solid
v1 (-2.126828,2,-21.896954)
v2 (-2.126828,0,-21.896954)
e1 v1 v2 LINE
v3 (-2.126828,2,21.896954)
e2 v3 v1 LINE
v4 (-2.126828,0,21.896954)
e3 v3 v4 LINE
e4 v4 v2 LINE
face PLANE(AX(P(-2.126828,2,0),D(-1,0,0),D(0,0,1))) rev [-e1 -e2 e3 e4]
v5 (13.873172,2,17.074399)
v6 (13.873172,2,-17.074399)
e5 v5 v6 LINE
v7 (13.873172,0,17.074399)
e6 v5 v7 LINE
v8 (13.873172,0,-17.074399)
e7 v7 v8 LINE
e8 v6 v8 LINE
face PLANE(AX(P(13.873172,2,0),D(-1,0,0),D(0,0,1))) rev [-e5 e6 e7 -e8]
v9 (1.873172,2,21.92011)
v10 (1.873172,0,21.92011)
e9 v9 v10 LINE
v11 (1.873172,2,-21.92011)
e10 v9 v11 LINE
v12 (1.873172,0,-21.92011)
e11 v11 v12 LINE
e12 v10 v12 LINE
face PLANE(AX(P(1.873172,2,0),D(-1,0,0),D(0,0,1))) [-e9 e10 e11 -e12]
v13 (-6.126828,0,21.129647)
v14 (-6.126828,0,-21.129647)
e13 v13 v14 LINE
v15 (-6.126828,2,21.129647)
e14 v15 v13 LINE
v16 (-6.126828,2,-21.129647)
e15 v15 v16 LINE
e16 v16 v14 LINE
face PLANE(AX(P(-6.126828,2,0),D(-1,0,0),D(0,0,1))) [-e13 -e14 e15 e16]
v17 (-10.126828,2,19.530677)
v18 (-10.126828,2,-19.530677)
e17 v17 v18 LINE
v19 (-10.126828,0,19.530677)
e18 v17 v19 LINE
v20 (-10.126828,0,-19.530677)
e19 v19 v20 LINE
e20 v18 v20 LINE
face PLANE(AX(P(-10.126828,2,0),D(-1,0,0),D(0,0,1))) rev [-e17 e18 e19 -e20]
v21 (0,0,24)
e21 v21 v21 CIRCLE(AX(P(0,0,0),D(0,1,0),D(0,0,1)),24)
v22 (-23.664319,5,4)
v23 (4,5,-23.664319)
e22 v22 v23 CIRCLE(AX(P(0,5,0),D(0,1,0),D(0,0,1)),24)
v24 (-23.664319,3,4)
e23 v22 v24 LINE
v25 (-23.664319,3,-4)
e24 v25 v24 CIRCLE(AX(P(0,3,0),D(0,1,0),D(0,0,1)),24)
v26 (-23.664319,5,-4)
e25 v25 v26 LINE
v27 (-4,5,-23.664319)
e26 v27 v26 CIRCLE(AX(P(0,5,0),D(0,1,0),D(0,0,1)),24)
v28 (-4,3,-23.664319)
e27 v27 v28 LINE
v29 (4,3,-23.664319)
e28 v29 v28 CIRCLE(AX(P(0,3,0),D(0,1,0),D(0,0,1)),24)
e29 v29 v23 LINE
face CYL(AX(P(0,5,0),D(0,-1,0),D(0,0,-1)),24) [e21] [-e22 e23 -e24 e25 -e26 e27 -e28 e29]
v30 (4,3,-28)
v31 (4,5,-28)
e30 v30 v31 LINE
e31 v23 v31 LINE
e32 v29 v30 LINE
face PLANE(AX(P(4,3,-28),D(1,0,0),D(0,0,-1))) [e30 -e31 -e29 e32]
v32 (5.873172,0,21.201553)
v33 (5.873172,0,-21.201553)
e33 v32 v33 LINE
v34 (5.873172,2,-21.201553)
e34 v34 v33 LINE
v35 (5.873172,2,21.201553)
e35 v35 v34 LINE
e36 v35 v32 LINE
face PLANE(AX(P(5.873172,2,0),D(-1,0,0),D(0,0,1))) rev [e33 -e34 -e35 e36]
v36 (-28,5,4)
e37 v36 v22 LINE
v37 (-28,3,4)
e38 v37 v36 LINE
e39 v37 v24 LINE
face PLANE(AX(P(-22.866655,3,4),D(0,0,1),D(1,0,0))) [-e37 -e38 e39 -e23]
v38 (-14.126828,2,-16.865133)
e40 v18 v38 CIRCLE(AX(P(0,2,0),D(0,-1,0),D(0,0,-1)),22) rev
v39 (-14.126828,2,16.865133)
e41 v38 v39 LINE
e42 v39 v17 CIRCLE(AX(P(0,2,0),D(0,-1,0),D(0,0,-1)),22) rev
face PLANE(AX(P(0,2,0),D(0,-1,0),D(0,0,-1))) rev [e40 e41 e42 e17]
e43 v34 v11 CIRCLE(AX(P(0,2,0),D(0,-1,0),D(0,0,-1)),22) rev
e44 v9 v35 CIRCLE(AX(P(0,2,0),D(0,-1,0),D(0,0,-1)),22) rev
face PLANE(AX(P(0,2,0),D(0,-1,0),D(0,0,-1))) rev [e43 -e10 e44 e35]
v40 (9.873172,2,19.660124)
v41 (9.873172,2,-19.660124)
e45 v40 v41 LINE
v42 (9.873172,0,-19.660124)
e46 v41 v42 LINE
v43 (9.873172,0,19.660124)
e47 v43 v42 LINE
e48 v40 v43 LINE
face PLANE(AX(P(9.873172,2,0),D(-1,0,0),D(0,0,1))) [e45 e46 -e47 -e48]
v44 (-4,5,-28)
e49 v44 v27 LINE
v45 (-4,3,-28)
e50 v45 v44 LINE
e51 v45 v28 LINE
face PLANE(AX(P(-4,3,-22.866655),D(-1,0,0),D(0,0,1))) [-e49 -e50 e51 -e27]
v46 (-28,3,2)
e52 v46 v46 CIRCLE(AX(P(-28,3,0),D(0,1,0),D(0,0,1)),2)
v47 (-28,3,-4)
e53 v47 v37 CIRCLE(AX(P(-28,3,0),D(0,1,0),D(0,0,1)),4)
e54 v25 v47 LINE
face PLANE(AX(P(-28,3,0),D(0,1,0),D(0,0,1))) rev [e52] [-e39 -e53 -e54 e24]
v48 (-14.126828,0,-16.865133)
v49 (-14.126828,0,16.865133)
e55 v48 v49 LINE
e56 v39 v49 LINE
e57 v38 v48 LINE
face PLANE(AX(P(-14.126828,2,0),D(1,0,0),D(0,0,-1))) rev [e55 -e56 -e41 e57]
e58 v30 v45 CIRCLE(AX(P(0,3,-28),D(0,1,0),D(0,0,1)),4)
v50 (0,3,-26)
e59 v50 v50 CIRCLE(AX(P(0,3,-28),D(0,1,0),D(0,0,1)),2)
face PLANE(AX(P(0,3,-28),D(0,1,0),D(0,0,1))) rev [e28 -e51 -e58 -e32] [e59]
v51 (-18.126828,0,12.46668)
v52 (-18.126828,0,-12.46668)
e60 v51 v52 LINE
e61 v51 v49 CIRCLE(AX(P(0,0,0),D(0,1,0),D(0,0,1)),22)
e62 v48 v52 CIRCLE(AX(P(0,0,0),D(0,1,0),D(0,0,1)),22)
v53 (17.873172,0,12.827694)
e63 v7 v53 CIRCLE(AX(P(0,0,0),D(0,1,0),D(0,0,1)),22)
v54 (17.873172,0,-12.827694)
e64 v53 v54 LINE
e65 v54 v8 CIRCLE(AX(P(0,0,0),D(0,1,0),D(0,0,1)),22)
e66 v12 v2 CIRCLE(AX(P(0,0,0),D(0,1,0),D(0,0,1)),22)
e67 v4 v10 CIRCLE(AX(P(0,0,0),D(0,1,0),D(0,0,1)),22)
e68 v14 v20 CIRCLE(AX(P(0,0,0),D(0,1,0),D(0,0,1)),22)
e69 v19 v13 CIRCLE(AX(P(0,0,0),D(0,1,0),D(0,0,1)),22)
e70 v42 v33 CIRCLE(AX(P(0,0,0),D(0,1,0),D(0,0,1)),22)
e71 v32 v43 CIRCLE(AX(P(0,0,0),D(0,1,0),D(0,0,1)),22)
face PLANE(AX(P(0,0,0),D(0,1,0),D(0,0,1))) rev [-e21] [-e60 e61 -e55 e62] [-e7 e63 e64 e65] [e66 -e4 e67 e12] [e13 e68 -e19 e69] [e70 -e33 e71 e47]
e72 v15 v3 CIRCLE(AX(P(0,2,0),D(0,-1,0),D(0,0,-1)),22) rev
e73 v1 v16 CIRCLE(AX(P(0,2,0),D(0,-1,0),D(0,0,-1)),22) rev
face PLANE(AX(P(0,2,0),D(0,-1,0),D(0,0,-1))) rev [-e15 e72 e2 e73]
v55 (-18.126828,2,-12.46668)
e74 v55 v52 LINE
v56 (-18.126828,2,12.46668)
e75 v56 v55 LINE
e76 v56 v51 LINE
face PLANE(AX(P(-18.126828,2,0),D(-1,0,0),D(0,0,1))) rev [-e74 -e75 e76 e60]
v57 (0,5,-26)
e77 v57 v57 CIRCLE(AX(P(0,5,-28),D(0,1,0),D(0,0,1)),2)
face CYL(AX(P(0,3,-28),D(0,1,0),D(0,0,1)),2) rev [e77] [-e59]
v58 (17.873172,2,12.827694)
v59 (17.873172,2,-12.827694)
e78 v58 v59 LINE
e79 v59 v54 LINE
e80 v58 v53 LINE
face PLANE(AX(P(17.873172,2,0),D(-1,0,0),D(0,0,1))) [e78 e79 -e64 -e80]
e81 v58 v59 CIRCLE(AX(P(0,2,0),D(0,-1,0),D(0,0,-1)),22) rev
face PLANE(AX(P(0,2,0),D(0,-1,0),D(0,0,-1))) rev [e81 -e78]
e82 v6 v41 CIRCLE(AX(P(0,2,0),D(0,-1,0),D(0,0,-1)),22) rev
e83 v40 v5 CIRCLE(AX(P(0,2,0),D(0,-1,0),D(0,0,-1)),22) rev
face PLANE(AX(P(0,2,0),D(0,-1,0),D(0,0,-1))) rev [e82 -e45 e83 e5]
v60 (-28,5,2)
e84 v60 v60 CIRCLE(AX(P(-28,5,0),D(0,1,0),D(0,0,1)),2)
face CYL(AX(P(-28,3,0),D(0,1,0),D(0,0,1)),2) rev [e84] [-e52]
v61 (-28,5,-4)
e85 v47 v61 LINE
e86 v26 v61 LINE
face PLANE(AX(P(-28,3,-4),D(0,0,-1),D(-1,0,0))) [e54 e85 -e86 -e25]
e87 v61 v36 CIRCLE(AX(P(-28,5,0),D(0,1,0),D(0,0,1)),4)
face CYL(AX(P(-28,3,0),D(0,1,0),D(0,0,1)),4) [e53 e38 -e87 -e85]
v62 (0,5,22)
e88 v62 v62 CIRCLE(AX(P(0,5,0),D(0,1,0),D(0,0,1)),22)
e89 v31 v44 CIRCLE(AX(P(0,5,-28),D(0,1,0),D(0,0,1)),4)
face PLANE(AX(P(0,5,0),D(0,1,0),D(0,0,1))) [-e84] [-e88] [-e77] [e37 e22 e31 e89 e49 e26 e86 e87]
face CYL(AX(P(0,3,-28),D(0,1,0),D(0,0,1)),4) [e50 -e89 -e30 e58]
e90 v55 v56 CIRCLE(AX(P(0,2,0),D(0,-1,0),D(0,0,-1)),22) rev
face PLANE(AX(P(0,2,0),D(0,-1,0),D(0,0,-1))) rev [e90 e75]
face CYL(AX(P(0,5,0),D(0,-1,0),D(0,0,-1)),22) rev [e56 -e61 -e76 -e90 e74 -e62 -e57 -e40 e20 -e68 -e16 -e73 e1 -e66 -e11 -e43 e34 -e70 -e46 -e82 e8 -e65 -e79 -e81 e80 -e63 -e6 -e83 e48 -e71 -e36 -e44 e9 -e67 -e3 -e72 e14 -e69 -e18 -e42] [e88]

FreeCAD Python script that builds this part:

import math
import FreeCAD as App
import Part
import Sketcher

V = App.Vector
Q = App.Units.Quantity

doc = App.newDocument("Part")
params = doc.addObject("Spreadsheet::Sheet", "Params")
for row, (alias, value) in enumerate([
    ("sketch1_diameter", "48 mm"),
    ("sketch1_diameter2", "44 mm"),
    ("pad1_length", "5 mm"),
    ("sketch2_radius", "24 mm"),
    ("sketch2_radius2", "22 mm"),
    ("pad2_length", "2 mm"),
    ("sketch3_diameter", "4 mm"),
    ("sketch3_radius", "4 mm"),
    ("pad3_length", "2 mm"),
], start=1):
    params.set(f"A{row}", alias)
    params.set(f"B{row}", "=" + value)
    params.setAlias(f"B{row}", alias)

body = doc.addObject("PartDesign::Body", "Body")

sketch1 = body.newObject("Sketcher::SketchObject", "Sketch")
sketch1.AttachmentSupport = (doc.getObject("XZ_Plane"), [""])
sketch1.MapMode = "FlatFace"
sketch1.addGeometry([
    Part.Circle(V(0, 0, 0), V(0, 0, 1), 24),
    Part.Circle(V(0, 0, 0), V(0, 0, 1), 22),
], False)
sketch1.addConstraint([
    Sketcher.Constraint("Coincident", 0, 3, -1, 1),
    Sketcher.Constraint("Coincident", 1, 3, -1, 1),
    Sketcher.Constraint("Diameter", 0, Q("48 mm")),
    Sketcher.Constraint("Diameter", 1, Q("44 mm")),
])
sketch1.setExpression("Constraints[2]", "Params.sketch1_diameter")
sketch1.setExpression("Constraints[3]", "Params.sketch1_diameter2")
pad1 = body.newObject("PartDesign::Pad", "Pad")
pad1.Profile = sketch1
pad1.setExpression("Length", "Params.pad1_length")
pad1.Reversed = True

sketch2 = body.newObject("Sketcher::SketchObject", "Sketch001")
sketch2.AttachmentSupport = (doc.getObject("XZ_Plane"), [""])
sketch2.MapMode = "FlatFace"
sketch2.addGeometry([
    Part.LineSegment(V(-18.1, 12.8, 0), V(-18.1, 15.7, 0)),
    Part.ArcOfCircle(Part.Circle(V(0, 0, 0), V(0, 0, 1), 24), math.radians(139), math.radians(221)),
    Part.LineSegment(V(-18.1, -15.7, 0), V(-18.1, -12.8, 0)),
    Part.ArcOfCircle(Part.Circle(V(0, 0, 0), V(0, 0, 1), 22.2), math.radians(145), math.radians(215)),
    Part.LineSegment(V(-18.1, -12.5, 0), V(-18.1, 12.5, 0)),
    Part.ArcOfCircle(Part.Circle(V(0, 0, 0), V(0, 0, 1), 22), math.radians(145), math.radians(215)),
    Part.ArcOfCircle(Part.Circle(V(0, 0, 0), V(0, 0, 1), 22), math.radians(117.41), math.radians(129.95)),
    Part.LineSegment(V(-14.1, 16.9, 0), V(-14.1, -16.9, 0)),
    Part.ArcOfCircle(Part.Circle(V(0, 0, 0), V(0, 0, 1), 22), math.radians(-129.95), math.radians(-117.41)),
    Part.LineSegment(V(-10.1, -19.5, 0), V(-10.1, 19.5, 0)),
    Part.ArcOfCircle(Part.Circle(V(0, 0, 0), V(0, 0, 1), 22), math.radians(95.55), math.radians(106.17)),
    Part.LineSegment(V(-6.1, 21.1, 0), V(-6.1, -21.1, 0)),
    Part.ArcOfCircle(Part.Circle(V(0, 0, 0), V(0, 0, 1), 22), math.radians(-106.17), math.radians(-95.55)),
    Part.LineSegment(V(-2.1, -21.9, 0), V(-2.1, 21.9, 0)),
    Part.ArcOfCircle(Part.Circle(V(0, 0, 0), V(0, 0, 1), 22), math.radians(74.52), math.radians(85.12)),
    Part.LineSegment(V(1.9, 21.9, 0), V(1.9, -21.9, 0)),
    Part.ArcOfCircle(Part.Circle(V(0, 0, 0), V(0, 0, 1), 22), math.radians(-85.12), math.radians(-74.52)),
    Part.LineSegment(V(5.9, -21.2, 0), V(5.9, 21.2, 0)),
    Part.ArcOfCircle(Part.Circle(V(0, 0, 0), V(0, 0, 1), 22), math.radians(50.91), math.radians(63.33)),
    Part.LineSegment(V(9.9, 19.7, 0), V(9.9, -19.7, 0)),
    Part.ArcOfCircle(Part.Circle(V(0, 0, 0), V(0, 0, 1), 22), math.radians(-63.33), math.radians(-50.91)),
    Part.LineSegment(V(13.9, -17.1, 0), V(13.9, 17.1, 0)),
    Part.ArcOfCircle(Part.Circle(V(0, 0, 0), V(0, 0, 1), 22), math.radians(0), math.radians(36)),
    Part.LineSegment(V(17.9, 12.8, 0), V(17.9, -12.8, 0)),
    Part.ArcOfCircle(Part.Circle(V(0, 0, 0), V(0, 0, 1), 22), math.radians(-36), math.radians(0)),
], False)
sketch2.addConstraint([
    Sketcher.Constraint("Coincident", 0, 2, 1, 1),
    Sketcher.Constraint("Coincident", 1, 2, 2, 1),
    Sketcher.Constraint("Coincident", 2, 2, 3, 2),
    Sketcher.Constraint("Coincident", 3, 1, 0, 1),
    Sketcher.Constraint("Coincident", 4, 1, 5, 2),
    Sketcher.Constraint("Coincident", 5, 1, 4, 2),
    Sketcher.Constraint("Coincident", 6, 2, 7, 1),
    Sketcher.Constraint("Coincident", 7, 2, 8, 1),
    Sketcher.Constraint("Coincident", 8, 2, 9, 1),
    Sketcher.Constraint("Coincident", 9, 2, 6, 1),
    Sketcher.Constraint("Coincident", 10, 2, 11, 1),
    Sketcher.Constraint("Coincident", 11, 2, 12, 1),
    Sketcher.Constraint("Coincident", 12, 2, 13, 1),
    Sketcher.Constraint("Coincident", 13, 2, 10, 1),
    Sketcher.Constraint("Coincident", 14, 2, 15, 1),
    Sketcher.Constraint("Coincident", 15, 2, 16, 1),
    Sketcher.Constraint("Coincident", 16, 2, 17, 1),
    Sketcher.Constraint("Coincident", 17, 2, 14, 1),
    Sketcher.Constraint("Coincident", 18, 2, 19, 1),
    Sketcher.Constraint("Coincident", 19, 2, 20, 1),
    Sketcher.Constraint("Coincident", 20, 2, 21, 1),
    Sketcher.Constraint("Coincident", 21, 2, 18, 1),
    Sketcher.Constraint("Coincident", 22, 2, 23, 1),
    Sketcher.Constraint("Coincident", 23, 2, 24, 1),
    Sketcher.Constraint("Tangent", 24, 2, 22, 1),
    Sketcher.Constraint("Vertical", 0),
    Sketcher.Constraint("Vertical", 2),
    Sketcher.Constraint("Vertical", 4),
    Sketcher.Constraint("Vertical", 7),
    Sketcher.Constraint("Vertical", 9),
    Sketcher.Constraint("Vertical", 11),
    Sketcher.Constraint("Vertical", 13),
    Sketcher.Constraint("Vertical", 15),
    Sketcher.Constraint("Vertical", 17),
    Sketcher.Constraint("Vertical", 19),
    Sketcher.Constraint("Vertical", 21),
    Sketcher.Constraint("Vertical", 23),
    Sketcher.Constraint("Coincident", 1, 3, -1, 1),
    Sketcher.Constraint("Coincident", 3, 3, -1, 1),
    Sketcher.Constraint("Coincident", 5, 3, -1, 1),
    Sketcher.Constraint("Coincident", 6, 3, -1, 1),
    Sketcher.Constraint("Coincident", 8, 3, -1, 1),
    Sketcher.Constraint("Coincident", 10, 3, -1, 1),
    Sketcher.Constraint("Coincident", 12, 3, -1, 1),
    Sketcher.Constraint("Coincident", 14, 3, -1, 1),
    Sketcher.Constraint("Coincident", 16, 3, -1, 1),
    Sketcher.Constraint("Coincident", 18, 3, -1, 1),
    Sketcher.Constraint("Coincident", 20, 3, -1, 1),
    Sketcher.Constraint("Coincident", 22, 3, -1, 1),
    Sketcher.Constraint("Equal", 5, 6),
    Sketcher.Constraint("Equal", 6, 8),
    Sketcher.Constraint("Equal", 8, 10),
    Sketcher.Constraint("Equal", 10, 12),
    Sketcher.Constraint("Equal", 12, 14),
    Sketcher.Constraint("Equal", 14, 16),
    Sketcher.Constraint("Equal", 16, 18),
    Sketcher.Constraint("Equal", 18, 20),
    Sketcher.Constraint("Equal", 20, 22),
    Sketcher.Constraint("Equal", 22, 24),
    Sketcher.Constraint("PointOnObject", 24, 2, -1),
    Sketcher.Constraint("Vertical", 0, 2, 1, 2),
    Sketcher.Constraint("Vertical", 3, 1, 4, 1),
    Sketcher.Constraint("Radius", 1, Q("24 mm")),
    Sketcher.Constraint("Radius", 5, Q("22 mm")),
    Sketcher.Constraint("DistanceX", 0, 2, 6, 2, Q("4 mm")),
    Sketcher.Constraint("DistanceX", 7, 2, 8, 2, Q("4 mm")),
    Sketcher.Constraint("DistanceX", 9, 2, 10, 2, Q("4 mm")),
    Sketcher.Constraint("DistanceX", 11, 2, 12, 2, Q("4 mm")),
    Sketcher.Constraint("DistanceX", 13, 2, 14, 2, Q("4 mm")),
    Sketcher.Constraint("DistanceX", 15, 2, 16, 2, Q("4 mm")),
    Sketcher.Constraint("DistanceX", 17, 2, 18, 2, Q("4 mm")),
    Sketcher.Constraint("DistanceX", 19, 2, 20, 2, Q("4 mm")),
    Sketcher.Constraint("DistanceX", 21, 2, 22, 2, Q("4 mm")),
    Sketcher.Constraint("DistanceY", 21, 1, 21, 2, Q("34.148798 mm")),
    Sketcher.Constraint("Radius", 3, Q("22.209916 mm")),
])
sketch2.setExpression("Constraints[62]", "Params.sketch2_radius")
sketch2.setExpression("Constraints[63]", "Params.sketch2_radius2")
pad2 = body.newObject("PartDesign::Pad", "Pad001")
pad2.Profile = sketch2
pad2.setExpression("Length", "Params.pad2_length")
pad2.Reversed = True

sketch3 = body.newObject("Sketcher::SketchObject", "Sketch002")
sketch3.AttachmentSupport = (doc.getObject("XZ_Plane"), [""])
sketch3.MapMode = "FlatFace"
sketch3.AttachmentOffset = App.Placement(V(0, 0, -5), App.Rotation())
sketch3.addGeometry([
    Part.LineSegment(V(-22.9, -4, 0), V(-28, -4, 0)),
    Part.ArcOfCircle(Part.Circle(V(-28, 0, 0), V(0, 0, 1), 4), math.radians(90), math.radians(270)),
    Part.LineSegment(V(-28, 4, 0), V(-22.9, 4, 0)),
    Part.LineSegment(V(-22.9, 4, 0), V(-22.9, -4, 0)),
    Part.Circle(V(-28, 0, 0), V(0, 0, 1), 2),
    Part.LineSegment(V(-4, -28, 0), V(-4, -22.9, 0)),
    Part.LineSegment(V(-4, -22.9, 0), V(4, -22.9, 0)),
    Part.LineSegment(V(4, -22.9, 0), V(4, -28, 0)),
    Part.ArcOfCircle(Part.Circle(V(0, -28, 0), V(0, 0, 1), 4), math.radians(180), math.radians(360)),
    Part.Circle(V(0, -28, 0), V(0, 0, 1), 2),
], False)
sketch3.addConstraint([
    Sketcher.Constraint("Tangent", 0, 2, 1, 2),
    Sketcher.Constraint("Tangent", 1, 1, 2, 1),
    Sketcher.Constraint("Coincident", 2, 2, 3, 1),
    Sketcher.Constraint("Coincident", 3, 2, 0, 1),
    Sketcher.Constraint("Coincident", 5, 2, 6, 1),
    Sketcher.Constraint("Coincident", 6, 2, 7, 1),
    Sketcher.Constraint("Tangent", 7, 2, 8, 2),
    Sketcher.Constraint("Tangent", 8, 1, 5, 1),
    Sketcher.Constraint("Horizontal", 0),
    Sketcher.Constraint("Horizontal", 2),
    Sketcher.Constraint("Vertical", 3),
    Sketcher.Constraint("Vertical", 5),
    Sketcher.Constraint("Horizontal", 6),
    Sketcher.Constraint("Vertical", 7),
    Sketcher.Constraint("Coincident", 4, 3, 1, 3),
    Sketcher.Constraint("Coincident", 9, 3, 8, 3),
    Sketcher.Constraint("Equal", 1, 8),
    Sketcher.Constraint("Equal", 4, 9),
    Sketcher.Constraint("PointOnObject", 1, 3, -1),
    Sketcher.Constraint("PointOnObject", 8, 3, -2),
    Sketcher.Constraint("Equal", 2, 5),
    Sketcher.Constraint("Diameter", 4, Q("4 mm")),
    Sketcher.Constraint("Radius", 1, Q("4 mm")),
    Sketcher.Constraint("DistanceX", 1, 3, -1, 1, Q("28 mm")),
    Sketcher.Constraint("DistanceY", 8, 3, -1, 1, Q("28 mm")),
    Sketcher.Constraint("DistanceX", 0, 2, 0, 1, Q("5.133345 mm")),
])
sketch3.setExpression("Constraints[21]", "Params.sketch3_diameter")
sketch3.setExpression("Constraints[22]", "Params.sketch3_radius")
pad3 = body.newObject("PartDesign::Pad", "Pad002")
pad3.Profile = sketch3
pad3.setExpression("Length", "Params.pad3_length")

doc.recompute()
